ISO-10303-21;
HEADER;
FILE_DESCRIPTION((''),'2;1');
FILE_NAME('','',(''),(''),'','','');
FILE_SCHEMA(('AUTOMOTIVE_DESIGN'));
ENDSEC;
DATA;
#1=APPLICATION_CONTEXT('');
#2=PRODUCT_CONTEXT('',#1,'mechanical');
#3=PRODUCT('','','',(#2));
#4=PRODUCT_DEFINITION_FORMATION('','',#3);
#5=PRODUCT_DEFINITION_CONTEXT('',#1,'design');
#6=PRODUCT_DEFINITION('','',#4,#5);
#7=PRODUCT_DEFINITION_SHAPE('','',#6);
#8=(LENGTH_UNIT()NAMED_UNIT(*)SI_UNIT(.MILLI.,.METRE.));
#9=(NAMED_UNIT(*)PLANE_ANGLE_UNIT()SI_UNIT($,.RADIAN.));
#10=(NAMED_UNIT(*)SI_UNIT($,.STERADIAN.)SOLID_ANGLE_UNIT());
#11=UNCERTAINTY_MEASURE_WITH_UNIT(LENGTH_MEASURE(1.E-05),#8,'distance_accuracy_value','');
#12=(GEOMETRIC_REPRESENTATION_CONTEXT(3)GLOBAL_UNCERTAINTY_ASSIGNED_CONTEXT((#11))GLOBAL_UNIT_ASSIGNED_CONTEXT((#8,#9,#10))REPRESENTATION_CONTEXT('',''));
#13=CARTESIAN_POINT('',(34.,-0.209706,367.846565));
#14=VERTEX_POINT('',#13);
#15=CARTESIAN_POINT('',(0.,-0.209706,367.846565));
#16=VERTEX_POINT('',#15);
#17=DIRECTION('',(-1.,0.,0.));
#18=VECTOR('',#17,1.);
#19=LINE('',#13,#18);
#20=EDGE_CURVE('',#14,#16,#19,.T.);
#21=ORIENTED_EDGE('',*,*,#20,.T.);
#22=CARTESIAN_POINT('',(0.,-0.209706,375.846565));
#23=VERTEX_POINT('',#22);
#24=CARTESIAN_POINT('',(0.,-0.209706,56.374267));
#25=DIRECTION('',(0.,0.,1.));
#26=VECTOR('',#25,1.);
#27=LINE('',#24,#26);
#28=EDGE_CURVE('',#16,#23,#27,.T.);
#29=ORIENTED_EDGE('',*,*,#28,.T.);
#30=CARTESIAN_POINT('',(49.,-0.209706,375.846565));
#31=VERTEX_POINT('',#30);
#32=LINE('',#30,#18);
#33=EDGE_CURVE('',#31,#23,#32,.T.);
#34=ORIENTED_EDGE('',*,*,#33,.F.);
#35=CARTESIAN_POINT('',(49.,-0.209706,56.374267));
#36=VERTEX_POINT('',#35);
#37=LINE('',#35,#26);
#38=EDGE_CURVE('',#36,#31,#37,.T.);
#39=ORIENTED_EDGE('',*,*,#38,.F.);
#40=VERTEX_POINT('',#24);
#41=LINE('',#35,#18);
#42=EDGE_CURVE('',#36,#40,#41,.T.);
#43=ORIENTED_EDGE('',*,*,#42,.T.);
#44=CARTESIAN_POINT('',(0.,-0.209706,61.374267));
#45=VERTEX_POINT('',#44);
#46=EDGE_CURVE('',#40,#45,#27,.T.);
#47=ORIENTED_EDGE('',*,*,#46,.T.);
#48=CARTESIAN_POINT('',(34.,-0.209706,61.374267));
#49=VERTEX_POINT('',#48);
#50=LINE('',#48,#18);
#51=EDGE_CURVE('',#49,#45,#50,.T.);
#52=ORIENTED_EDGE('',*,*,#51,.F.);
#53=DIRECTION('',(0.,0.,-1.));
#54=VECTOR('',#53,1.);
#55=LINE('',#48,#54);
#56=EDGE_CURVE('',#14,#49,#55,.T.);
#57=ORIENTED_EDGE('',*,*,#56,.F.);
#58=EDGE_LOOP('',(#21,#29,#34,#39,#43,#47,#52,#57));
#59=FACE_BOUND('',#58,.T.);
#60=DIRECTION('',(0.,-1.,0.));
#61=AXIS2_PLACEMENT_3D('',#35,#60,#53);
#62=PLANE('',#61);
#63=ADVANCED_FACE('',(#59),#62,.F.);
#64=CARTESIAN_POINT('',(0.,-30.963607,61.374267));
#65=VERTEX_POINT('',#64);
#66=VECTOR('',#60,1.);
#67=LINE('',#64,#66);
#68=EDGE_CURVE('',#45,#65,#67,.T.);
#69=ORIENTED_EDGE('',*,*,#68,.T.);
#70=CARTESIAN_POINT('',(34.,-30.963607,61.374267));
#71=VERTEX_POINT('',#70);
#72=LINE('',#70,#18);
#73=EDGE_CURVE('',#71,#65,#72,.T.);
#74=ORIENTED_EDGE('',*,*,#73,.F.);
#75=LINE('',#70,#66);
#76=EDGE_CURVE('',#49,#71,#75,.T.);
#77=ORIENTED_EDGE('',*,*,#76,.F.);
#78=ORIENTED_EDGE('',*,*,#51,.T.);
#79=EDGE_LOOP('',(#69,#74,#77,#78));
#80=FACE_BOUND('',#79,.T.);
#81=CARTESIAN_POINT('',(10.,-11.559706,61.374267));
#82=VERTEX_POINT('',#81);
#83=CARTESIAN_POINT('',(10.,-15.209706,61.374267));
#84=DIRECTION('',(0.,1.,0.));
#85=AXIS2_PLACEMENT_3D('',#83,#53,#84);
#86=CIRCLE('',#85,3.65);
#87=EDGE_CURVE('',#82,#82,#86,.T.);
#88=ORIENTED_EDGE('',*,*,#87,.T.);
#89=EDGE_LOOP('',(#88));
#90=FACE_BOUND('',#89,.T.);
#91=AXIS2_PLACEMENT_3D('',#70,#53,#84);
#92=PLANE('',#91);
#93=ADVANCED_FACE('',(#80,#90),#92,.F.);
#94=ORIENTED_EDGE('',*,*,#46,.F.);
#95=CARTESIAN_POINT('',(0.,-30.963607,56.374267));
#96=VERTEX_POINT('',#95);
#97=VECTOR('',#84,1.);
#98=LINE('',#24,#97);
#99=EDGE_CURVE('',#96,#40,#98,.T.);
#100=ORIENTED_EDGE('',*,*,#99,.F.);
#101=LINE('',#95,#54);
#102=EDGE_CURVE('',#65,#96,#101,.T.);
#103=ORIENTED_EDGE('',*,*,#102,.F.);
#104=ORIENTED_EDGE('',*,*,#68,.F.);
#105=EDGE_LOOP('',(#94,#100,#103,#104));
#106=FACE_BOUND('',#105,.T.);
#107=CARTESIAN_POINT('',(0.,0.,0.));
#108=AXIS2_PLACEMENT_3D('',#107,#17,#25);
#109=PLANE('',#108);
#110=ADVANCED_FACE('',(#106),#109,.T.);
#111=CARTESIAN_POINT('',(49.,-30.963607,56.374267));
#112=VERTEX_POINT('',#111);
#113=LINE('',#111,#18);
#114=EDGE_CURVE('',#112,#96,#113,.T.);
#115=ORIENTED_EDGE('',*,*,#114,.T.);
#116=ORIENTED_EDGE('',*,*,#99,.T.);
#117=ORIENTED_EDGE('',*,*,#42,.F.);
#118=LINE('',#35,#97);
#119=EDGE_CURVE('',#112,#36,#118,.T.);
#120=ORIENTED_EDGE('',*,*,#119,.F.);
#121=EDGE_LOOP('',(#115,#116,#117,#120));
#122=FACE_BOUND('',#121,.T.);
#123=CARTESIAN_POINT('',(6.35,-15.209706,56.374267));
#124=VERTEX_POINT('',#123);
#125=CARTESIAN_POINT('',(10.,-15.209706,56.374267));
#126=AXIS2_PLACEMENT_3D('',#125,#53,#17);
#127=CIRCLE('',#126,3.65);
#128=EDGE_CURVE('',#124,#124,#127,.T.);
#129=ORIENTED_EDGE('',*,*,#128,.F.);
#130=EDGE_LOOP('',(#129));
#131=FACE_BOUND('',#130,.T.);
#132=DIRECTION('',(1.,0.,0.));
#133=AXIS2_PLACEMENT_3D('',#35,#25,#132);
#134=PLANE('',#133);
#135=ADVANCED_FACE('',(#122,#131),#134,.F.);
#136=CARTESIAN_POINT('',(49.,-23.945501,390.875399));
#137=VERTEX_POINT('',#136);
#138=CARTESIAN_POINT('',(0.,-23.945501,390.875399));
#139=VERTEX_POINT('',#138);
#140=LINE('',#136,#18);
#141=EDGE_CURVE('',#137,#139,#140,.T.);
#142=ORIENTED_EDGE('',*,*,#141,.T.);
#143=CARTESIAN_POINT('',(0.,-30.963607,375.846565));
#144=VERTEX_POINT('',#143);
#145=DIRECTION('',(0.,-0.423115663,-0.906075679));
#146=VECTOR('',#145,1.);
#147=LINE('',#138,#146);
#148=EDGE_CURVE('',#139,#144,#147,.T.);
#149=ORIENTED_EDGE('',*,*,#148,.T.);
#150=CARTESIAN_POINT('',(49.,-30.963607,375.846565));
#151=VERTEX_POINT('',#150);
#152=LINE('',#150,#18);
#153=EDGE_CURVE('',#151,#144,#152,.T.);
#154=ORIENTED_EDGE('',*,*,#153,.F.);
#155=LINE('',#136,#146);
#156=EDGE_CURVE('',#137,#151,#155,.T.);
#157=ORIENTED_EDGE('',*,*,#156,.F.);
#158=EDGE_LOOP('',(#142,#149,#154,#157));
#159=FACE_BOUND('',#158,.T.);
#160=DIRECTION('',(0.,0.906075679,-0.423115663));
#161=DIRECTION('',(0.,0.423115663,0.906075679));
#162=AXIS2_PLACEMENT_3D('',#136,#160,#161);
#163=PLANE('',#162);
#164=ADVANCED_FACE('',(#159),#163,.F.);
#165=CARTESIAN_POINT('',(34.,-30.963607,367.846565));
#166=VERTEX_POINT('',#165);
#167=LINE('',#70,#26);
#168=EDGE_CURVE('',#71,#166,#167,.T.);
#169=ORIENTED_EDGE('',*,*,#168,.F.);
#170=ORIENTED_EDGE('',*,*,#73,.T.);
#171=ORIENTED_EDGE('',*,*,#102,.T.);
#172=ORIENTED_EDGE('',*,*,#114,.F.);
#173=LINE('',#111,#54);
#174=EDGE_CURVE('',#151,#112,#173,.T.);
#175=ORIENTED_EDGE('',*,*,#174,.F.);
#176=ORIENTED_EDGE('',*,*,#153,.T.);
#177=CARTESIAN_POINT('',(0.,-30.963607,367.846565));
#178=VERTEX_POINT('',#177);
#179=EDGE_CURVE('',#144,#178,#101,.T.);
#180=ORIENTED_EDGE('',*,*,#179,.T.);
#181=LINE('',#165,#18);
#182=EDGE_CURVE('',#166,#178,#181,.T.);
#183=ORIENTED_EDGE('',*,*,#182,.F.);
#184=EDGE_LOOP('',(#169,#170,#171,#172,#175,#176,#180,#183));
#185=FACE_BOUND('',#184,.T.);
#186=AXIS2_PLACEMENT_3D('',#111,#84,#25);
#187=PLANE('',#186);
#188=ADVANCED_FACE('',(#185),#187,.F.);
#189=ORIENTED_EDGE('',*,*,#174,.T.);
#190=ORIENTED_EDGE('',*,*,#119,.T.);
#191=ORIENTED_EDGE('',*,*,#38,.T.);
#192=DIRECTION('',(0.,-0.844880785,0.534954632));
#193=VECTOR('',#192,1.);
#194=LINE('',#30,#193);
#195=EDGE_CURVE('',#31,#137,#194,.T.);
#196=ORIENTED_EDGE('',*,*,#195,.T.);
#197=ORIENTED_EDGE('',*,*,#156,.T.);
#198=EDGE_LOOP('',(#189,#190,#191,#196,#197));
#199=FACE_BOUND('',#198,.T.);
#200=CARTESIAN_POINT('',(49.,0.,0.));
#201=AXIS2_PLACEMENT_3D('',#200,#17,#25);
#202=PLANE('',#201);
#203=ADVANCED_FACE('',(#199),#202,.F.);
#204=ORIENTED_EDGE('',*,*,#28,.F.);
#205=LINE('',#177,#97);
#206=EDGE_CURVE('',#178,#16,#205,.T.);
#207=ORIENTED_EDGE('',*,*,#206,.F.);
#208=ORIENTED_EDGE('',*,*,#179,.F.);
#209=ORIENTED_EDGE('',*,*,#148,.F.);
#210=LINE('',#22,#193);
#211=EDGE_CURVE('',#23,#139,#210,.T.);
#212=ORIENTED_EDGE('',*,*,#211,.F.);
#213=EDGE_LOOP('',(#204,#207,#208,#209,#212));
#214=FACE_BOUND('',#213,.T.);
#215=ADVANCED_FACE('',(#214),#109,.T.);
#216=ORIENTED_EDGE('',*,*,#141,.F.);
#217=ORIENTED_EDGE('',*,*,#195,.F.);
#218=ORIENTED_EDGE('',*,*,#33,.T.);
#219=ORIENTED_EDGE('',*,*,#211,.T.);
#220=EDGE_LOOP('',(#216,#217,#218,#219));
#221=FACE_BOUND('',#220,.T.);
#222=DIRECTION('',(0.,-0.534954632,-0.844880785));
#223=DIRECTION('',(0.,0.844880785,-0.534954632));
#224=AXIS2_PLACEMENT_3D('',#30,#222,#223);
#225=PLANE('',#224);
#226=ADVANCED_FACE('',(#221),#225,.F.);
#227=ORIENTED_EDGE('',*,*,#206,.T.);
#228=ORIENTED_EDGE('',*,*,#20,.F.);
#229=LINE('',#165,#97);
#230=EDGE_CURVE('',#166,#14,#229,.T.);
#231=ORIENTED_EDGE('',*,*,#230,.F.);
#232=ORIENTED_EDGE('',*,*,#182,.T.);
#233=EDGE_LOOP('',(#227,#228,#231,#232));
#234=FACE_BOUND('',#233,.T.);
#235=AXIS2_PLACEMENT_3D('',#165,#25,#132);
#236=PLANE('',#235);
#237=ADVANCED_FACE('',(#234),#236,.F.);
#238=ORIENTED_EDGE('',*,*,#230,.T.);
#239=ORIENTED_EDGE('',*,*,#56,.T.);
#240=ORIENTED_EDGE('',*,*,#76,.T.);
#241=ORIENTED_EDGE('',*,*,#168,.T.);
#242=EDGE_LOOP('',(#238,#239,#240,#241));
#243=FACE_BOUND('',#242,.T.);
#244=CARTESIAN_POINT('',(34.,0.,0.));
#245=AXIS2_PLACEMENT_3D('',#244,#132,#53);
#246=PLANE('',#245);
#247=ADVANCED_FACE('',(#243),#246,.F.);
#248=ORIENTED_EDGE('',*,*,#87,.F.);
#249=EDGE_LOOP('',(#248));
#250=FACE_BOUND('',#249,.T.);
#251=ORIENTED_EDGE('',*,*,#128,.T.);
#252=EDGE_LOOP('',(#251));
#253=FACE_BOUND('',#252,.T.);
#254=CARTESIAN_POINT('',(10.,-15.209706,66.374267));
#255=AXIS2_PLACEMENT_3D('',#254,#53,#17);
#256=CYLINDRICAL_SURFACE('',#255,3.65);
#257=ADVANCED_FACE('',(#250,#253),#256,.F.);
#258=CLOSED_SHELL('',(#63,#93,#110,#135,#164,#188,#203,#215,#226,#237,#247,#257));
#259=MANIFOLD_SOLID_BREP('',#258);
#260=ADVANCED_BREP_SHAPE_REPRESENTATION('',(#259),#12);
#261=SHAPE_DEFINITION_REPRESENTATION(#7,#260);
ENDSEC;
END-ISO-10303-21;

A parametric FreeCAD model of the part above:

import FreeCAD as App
import Part
import Sketcher
from FreeCAD import Vector


def add_polygon(sketch, points):
    """Adds a closed chain of lines whose ends are joined by coincident constraints."""
    first, n = sketch.GeometryCount, len(points)
    for a, b in zip(points, points[1:] + points[:1]):
        sketch.addGeometry(Part.LineSegment(App.Vector(*a, 0), App.Vector(*b, 0)), False)
    for i in range(n):
        sketch.addConstraint(Sketcher.Constraint("Coincident", first + i, 2, first + (i + 1) % n, 1))

doc = App.newDocument("Part")
body = doc.addObject("PartDesign::Body", "Body")

# Sketch on YZ plane
sketch1 = body.newObject("Sketcher::SketchObject", "Sketch")
sketch1.AttachmentSupport = (doc.getObject("YZ_Plane"), [""])
sketch1.MapMode = "FlatFace"
add_polygon(sketch1, [(0, 376), (-24, 391), (-31, 376), (-31, 56), (0, 56)])  # lines 0-4
sketch1.addConstraint([
    Sketcher.Constraint("Vertical", 2),
    Sketcher.Constraint("Horizontal", 3),
    Sketcher.Constraint("Vertical", 4),
    Sketcher.Constraint("Horizontal", 1, 2, 4, 2),
    Sketcher.Constraint("DistanceX", 3, 1, 3, 2, 30.753901),
    Sketcher.Constraint("DistanceY", 2, 2, 2, 1, 319.472298),
    Sketcher.Constraint("DistanceX", 0, 2, -1, 1, 23.945501),
    Sketcher.Constraint("DistanceY", -1, 1, 0, 2, 390.875399),
    Sketcher.Constraint("Distance", 0, 28.093661),
    Sketcher.Constraint("Distance", 1, 16.586732),
])
pad1 = body.newObject("PartDesign::Pad", "Pad")
pad1.Profile = sketch1
pad1.Length = 49

# Sketch on YZ plane
sketch2 = body.newObject("Sketcher::SketchObject", "Sketch001")
sketch2.AttachmentSupport = (doc.getObject("YZ_Plane"), [""])
sketch2.MapMode = "FlatFace"
add_polygon(sketch2, [(0, 61), (-31, 61), (-31, 368), (0, 368)])  # lines 0-3
sketch2.addConstraint([
    Sketcher.Constraint("Horizontal", 0),
    Sketcher.Constraint("Vertical", 1),
    Sketcher.Constraint("Horizontal", 2),
    Sketcher.Constraint("Vertical", 3),
    Sketcher.Constraint("DistanceX", 0, 2, 0, 1, 30.753901),
    Sketcher.Constraint("DistanceY", 1, 1, 1, 2, 306.472298),
    Sketcher.Constraint("DistanceX", 0, 2, -1, 1, 30.963607),
    Sketcher.Constraint("DistanceY", -1, 1, 0, 2, 61.374267),
])
pocket1 = body.newObject("PartDesign::Pocket", "Pocket")
pocket1.Profile = sketch2
pocket1.Length = 34
pocket1.Reversed = True

# Sketch on XY plane
sketch3 = body.newObject("Sketcher::SketchObject", "Sketch002")
sketch3.AttachmentSupport = (doc.getObject("XY_Plane"), [""])
sketch3.MapMode = "FlatFace"
sketch3.AttachmentOffset = App.Placement(Vector(0, 0, 56.374267), App.Rotation())
sketch3.addGeometry(Part.Circle(Vector(10, -15.2, 0), Vector(0, 0, 1), 3.6), False)
sketch3.addConstraint([
    Sketcher.Constraint("Diameter", 0, 7.3),
    Sketcher.Constraint("DistanceX", -1, 1, 0, 3, 10.0),
    Sketcher.Constraint("DistanceY", 0, 3, -1, 1, 15.209706),
])
pocket2 = body.newObject("PartDesign::Pocket", "Pocket001")
pocket2.Profile = sketch3
pocket2.Length = 10
pocket2.Reversed = True

doc.recompute()
